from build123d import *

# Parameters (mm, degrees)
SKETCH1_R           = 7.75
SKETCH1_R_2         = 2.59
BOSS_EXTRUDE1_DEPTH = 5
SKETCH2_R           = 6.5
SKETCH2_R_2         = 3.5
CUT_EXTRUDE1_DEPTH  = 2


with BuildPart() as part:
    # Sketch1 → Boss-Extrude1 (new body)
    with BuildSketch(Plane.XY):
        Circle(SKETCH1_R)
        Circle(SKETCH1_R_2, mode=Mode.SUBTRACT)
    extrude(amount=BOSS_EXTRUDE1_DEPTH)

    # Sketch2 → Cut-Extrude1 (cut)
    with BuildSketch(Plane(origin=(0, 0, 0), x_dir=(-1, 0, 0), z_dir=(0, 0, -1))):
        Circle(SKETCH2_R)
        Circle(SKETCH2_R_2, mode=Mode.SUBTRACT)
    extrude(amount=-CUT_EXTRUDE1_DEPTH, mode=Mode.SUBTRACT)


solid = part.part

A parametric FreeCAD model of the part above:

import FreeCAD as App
import Part
import Sketcher

V = App.Vector

doc = App.newDocument("Part")
body = doc.addObject("PartDesign::Body", "Body")

sketch1 = body.newObject("Sketcher::SketchObject", "Sketch")
sketch1.AttachmentSupport = (doc.getObject("XY_Plane"), [""])
sketch1.MapMode = "FlatFace"
sketch1.addGeometry(Part.Circle(V(0, 0, 0), V(0, 0, 1), 7.75), False)
sketch1.addGeometry(Part.Circle(V(0, 0, 0), V(0, 0, 1), 2.59), False)
sketch1.addConstraint(Sketcher.Constraint("Coincident", 0, 3, -1, 1))
sketch1.addConstraint(Sketcher.Constraint("Coincident", 1, 3, -1, 1))
sketch1.addConstraint(Sketcher.Constraint("Diameter", 0, 15.5))
sketch1.addConstraint(Sketcher.Constraint("Diameter", 1, 5.18))
pad1 = body.newObject("PartDesign::Pad", "Pad")
pad1.Profile = sketch1
pad1.Length = 5

sketch2 = body.newObject("Sketcher::SketchObject", "Sketch001")
sketch2.AttachmentSupport = (doc.getObject("XY_Plane"), [""])
sketch2.MapMode = "FlatFace"
sketch2.addGeometry(Part.Circle(V(0, 0, 0), V(0, 0, 1), 6.5), False)
sketch2.addGeometry(Part.Circle(V(0, 0, 0), V(0, 0, 1), 3.5), False)
sketch2.addConstraint(Sketcher.Constraint("Coincident", 0, 3, -1, 1))
sketch2.addConstraint(Sketcher.Constraint("Coincident", 1, 3, -1, 1))
sketch2.addConstraint(Sketcher.Constraint("Diameter", 0, 13.0))
sketch2.addConstraint(Sketcher.Constraint("Diameter", 1, 7.0))
pocket1 = body.newObject("PartDesign::Pocket", "Pocket")
pocket1.Profile = sketch2
pocket1.Length = 2
pocket1.Reversed = True

doc.recompute()
